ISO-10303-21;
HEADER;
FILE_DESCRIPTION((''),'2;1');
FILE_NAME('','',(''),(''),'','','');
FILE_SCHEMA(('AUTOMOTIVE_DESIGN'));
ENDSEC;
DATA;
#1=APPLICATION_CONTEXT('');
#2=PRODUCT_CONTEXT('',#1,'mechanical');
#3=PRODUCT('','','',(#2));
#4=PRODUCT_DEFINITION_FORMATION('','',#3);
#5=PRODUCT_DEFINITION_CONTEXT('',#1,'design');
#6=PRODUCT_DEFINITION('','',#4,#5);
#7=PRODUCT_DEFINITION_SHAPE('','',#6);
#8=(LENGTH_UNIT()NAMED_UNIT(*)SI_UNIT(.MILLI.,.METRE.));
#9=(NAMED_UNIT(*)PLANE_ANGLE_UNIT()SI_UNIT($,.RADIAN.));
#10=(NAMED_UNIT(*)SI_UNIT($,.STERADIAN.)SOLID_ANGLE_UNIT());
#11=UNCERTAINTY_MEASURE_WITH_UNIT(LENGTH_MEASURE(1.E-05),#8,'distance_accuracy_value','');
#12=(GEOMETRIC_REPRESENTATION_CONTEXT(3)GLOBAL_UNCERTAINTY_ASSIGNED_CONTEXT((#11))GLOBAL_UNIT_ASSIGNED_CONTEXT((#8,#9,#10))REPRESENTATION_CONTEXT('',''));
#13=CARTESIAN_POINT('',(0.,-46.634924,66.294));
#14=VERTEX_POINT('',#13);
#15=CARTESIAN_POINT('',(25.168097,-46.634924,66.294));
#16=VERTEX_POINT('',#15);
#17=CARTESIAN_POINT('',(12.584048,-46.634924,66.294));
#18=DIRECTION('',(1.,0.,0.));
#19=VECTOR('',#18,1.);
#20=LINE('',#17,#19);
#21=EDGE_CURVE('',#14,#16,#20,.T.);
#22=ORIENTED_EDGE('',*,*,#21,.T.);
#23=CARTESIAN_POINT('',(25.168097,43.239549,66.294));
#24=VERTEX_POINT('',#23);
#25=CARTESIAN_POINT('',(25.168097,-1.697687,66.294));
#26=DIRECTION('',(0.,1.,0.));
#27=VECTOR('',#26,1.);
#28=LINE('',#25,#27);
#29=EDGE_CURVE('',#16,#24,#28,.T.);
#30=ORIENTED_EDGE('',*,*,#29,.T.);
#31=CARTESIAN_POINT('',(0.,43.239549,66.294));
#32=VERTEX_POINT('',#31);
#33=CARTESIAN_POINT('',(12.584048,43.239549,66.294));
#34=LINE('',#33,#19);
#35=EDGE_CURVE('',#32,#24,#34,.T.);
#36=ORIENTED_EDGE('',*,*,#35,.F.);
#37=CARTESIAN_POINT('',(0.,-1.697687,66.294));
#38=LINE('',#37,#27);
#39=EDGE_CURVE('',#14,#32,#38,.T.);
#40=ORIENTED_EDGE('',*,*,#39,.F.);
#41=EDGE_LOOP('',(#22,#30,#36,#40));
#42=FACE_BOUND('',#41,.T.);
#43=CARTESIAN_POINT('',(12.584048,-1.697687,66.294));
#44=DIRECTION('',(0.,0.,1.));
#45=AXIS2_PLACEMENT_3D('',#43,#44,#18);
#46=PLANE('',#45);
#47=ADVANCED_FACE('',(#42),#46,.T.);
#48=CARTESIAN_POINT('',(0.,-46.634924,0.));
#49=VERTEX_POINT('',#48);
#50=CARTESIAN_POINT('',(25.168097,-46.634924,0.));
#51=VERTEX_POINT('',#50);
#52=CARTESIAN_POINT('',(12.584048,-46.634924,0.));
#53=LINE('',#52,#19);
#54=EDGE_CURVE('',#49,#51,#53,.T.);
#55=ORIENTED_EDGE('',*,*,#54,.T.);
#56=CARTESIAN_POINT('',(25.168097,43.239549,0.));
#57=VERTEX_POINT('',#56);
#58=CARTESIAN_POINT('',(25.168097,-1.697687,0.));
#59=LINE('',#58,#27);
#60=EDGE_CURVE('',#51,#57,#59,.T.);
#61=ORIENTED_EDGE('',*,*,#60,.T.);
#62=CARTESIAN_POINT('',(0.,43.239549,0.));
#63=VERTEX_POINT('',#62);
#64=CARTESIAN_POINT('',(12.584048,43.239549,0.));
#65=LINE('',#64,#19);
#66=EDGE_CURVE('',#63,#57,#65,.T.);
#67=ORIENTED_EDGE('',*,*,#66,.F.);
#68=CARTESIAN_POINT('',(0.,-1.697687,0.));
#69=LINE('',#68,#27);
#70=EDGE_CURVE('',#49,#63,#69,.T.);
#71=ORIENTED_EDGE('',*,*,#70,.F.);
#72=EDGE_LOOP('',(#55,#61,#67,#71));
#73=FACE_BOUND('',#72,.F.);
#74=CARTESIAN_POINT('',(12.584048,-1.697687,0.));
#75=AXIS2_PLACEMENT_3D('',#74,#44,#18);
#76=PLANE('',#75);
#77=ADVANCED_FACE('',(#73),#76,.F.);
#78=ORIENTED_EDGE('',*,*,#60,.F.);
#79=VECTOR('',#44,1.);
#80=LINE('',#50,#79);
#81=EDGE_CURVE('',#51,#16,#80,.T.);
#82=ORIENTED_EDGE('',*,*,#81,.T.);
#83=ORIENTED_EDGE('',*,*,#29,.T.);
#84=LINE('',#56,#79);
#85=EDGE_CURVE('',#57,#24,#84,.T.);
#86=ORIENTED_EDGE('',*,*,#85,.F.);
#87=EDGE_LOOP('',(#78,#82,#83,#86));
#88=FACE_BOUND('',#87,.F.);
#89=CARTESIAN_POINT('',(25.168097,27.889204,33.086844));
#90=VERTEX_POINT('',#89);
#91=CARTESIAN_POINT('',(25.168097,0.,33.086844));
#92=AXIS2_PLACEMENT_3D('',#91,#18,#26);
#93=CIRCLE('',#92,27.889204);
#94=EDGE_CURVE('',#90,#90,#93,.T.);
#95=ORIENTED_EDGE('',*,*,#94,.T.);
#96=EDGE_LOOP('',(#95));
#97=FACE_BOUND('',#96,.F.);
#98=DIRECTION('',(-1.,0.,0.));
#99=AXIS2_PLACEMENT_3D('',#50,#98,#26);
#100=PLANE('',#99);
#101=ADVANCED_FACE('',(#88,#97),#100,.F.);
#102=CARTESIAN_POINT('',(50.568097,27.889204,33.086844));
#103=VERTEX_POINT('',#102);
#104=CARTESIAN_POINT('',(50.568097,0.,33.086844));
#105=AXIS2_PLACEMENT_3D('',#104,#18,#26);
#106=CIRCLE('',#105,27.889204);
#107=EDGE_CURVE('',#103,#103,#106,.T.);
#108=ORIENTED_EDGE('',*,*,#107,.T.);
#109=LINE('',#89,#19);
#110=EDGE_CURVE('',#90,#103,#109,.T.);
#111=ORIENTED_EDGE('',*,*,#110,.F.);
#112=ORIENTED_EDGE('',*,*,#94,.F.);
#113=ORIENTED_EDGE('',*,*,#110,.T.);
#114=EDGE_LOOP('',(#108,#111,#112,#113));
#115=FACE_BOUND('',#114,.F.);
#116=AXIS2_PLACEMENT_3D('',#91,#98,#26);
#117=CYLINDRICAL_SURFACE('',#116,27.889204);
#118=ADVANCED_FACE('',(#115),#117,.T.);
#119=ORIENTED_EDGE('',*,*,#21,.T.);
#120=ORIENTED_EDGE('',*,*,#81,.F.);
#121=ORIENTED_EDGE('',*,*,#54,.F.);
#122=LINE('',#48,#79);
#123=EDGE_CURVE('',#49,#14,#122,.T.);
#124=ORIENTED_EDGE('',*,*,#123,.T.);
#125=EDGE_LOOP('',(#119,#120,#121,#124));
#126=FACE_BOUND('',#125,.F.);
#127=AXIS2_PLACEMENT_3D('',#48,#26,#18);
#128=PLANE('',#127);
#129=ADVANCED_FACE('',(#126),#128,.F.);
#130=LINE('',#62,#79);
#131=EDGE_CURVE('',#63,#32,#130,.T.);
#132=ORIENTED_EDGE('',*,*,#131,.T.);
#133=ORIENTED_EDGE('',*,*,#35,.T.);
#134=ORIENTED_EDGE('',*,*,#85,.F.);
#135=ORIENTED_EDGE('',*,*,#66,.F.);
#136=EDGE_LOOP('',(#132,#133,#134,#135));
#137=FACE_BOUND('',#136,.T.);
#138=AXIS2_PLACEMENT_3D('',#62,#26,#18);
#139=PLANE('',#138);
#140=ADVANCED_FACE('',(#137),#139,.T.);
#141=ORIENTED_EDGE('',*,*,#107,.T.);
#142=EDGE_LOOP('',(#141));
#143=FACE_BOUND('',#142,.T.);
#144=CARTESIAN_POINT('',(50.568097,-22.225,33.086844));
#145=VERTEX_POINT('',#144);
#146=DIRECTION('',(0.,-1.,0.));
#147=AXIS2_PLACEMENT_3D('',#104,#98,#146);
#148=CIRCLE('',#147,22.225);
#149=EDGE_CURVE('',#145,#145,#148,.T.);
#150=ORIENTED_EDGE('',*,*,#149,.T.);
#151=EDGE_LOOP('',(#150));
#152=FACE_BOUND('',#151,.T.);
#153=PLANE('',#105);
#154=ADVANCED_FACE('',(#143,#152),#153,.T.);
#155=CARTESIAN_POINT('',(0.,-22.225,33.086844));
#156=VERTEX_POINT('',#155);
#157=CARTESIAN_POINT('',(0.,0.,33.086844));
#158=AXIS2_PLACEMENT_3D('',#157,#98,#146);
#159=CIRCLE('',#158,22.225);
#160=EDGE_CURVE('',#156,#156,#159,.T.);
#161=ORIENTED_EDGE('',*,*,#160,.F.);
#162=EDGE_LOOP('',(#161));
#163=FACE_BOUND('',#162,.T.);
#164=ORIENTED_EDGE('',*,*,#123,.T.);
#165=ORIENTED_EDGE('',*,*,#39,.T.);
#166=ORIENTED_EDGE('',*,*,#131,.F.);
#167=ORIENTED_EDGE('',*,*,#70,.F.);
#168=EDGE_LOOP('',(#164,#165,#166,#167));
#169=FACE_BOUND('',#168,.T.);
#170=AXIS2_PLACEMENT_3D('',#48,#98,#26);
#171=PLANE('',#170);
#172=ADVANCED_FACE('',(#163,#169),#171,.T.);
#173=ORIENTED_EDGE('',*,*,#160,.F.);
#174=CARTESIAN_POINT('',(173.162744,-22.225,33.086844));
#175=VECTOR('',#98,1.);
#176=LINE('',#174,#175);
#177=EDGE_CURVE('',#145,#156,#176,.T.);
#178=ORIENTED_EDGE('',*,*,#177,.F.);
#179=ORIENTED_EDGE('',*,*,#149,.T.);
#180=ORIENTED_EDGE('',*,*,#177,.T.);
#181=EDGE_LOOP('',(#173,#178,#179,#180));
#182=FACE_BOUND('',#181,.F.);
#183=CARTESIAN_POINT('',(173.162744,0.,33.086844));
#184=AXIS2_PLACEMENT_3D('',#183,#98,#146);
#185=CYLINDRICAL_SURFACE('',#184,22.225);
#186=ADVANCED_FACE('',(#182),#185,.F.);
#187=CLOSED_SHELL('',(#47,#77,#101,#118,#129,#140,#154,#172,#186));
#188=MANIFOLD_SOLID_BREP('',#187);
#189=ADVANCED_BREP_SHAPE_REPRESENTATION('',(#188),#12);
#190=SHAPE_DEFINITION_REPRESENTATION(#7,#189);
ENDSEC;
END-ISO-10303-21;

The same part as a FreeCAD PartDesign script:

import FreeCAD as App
import Part
import Sketcher

V = App.Vector
Q = App.Units.Quantity

doc = App.newDocument("Part")
body = doc.addObject("PartDesign::Body", "Body")

# Sketch on XY plane
sketch1 = doc.addObject("Sketcher::SketchObject", "Sketch")
body.addObject(sketch1)
sketch1.AttachmentSupport = (doc.XY_Plane, [""])
sketch1.MapMode = "FlatFace"
sketch1.addGeometry([
    Part.LineSegment(V(0, 43, 0), V(0, -47, 0)),
    Part.LineSegment(V(0, -47, 0), V(25, -47, 0)),
    Part.LineSegment(V(25, -47, 0), V(25, 43, 0)),
    Part.LineSegment(V(25, 43, 0), V(0, 43, 0)),
], False)
sketch1.addConstraint([
    Sketcher.Constraint("Coincident", 0, 2, 1, 1),
    Sketcher.Constraint("Coincident", 1, 2, 2, 1),
    Sketcher.Constraint("Coincident", 2, 2, 3, 1),
    Sketcher.Constraint("Coincident", 3, 2, 0, 1),
    Sketcher.Constraint("Vertical", 0),
    Sketcher.Constraint("Horizontal", 1),
    Sketcher.Constraint("Vertical", 2),
    Sketcher.Constraint("Horizontal", 3),
    Sketcher.Constraint("PointOnObject", 0, 2, -2),
    Sketcher.Constraint("DistanceX", 1, 1, 1, 2, 25.168097),
    Sketcher.Constraint("DistanceY", 0, 2, 0, 1, 89.874472),
    Sketcher.Constraint("DistanceY", -1, 1, 2, 2, 43.239549),
])
pad1 = doc.addObject("PartDesign::Pad", "Pad")
body.addObject(pad1)
pad1.Profile = sketch1
pad1.Length = Q("2.61 in")

# Sketch on YZ plane
sketch2 = doc.addObject("Sketcher::SketchObject", "Sketch001")
body.addObject(sketch2)
sketch2.AttachmentSupport = (doc.YZ_Plane, [""])
sketch2.MapMode = "FlatFace"
sketch2.AttachmentOffset = App.Placement(V(0, 0, 25.168097), App.Rotation())
sketch2.addGeometry(Part.Circle(V(0, 33, 0), V(0, 0, 1), 28), False)
sketch2.addConstraint([
    Sketcher.Constraint("PointOnObject", 0, 3, -2),
    Sketcher.Constraint("Diameter", 0, 55.778408),
    Sketcher.Constraint("DistanceY", -1, 1, 0, 3, 33.086844),
])
pad2 = doc.addObject("PartDesign::Pad", "Pad001")
body.addObject(pad2)
pad2.Profile = sketch2
pad2.Length = Q("1 in")

# Sketch on YZ plane
sketch3 = doc.addObject("Sketcher::SketchObject", "Sketch002")
body.addObject(sketch3)
sketch3.AttachmentSupport = (doc.YZ_Plane, [""])
sketch3.MapMode = "FlatFace"
sketch3.AttachmentOffset = App.Placement(V(0, 0, 50.568097), App.Rotation())
sketch3.addGeometry(Part.Circle(V(0, 33, 0), V(0, 0, 1), 22), False)
sketch3.addConstraint([
    Sketcher.Constraint("PointOnObject", 0, 3, -2),
    Sketcher.Constraint("Diameter", 0, Q("1.75 in")),
    Sketcher.Constraint("DistanceY", -1, 1, 0, 3, 33.086844),
])
doc.recompute()
hole = doc.addObject("PartDesign::Hole", "Hole")
body.addObject(hole)
hole.Profile = sketch3
hole.ThreadType = "None"
hole.Diameter = Q("1.75 in")
hole.DepthType = "ThroughAll"

doc.recompute()
